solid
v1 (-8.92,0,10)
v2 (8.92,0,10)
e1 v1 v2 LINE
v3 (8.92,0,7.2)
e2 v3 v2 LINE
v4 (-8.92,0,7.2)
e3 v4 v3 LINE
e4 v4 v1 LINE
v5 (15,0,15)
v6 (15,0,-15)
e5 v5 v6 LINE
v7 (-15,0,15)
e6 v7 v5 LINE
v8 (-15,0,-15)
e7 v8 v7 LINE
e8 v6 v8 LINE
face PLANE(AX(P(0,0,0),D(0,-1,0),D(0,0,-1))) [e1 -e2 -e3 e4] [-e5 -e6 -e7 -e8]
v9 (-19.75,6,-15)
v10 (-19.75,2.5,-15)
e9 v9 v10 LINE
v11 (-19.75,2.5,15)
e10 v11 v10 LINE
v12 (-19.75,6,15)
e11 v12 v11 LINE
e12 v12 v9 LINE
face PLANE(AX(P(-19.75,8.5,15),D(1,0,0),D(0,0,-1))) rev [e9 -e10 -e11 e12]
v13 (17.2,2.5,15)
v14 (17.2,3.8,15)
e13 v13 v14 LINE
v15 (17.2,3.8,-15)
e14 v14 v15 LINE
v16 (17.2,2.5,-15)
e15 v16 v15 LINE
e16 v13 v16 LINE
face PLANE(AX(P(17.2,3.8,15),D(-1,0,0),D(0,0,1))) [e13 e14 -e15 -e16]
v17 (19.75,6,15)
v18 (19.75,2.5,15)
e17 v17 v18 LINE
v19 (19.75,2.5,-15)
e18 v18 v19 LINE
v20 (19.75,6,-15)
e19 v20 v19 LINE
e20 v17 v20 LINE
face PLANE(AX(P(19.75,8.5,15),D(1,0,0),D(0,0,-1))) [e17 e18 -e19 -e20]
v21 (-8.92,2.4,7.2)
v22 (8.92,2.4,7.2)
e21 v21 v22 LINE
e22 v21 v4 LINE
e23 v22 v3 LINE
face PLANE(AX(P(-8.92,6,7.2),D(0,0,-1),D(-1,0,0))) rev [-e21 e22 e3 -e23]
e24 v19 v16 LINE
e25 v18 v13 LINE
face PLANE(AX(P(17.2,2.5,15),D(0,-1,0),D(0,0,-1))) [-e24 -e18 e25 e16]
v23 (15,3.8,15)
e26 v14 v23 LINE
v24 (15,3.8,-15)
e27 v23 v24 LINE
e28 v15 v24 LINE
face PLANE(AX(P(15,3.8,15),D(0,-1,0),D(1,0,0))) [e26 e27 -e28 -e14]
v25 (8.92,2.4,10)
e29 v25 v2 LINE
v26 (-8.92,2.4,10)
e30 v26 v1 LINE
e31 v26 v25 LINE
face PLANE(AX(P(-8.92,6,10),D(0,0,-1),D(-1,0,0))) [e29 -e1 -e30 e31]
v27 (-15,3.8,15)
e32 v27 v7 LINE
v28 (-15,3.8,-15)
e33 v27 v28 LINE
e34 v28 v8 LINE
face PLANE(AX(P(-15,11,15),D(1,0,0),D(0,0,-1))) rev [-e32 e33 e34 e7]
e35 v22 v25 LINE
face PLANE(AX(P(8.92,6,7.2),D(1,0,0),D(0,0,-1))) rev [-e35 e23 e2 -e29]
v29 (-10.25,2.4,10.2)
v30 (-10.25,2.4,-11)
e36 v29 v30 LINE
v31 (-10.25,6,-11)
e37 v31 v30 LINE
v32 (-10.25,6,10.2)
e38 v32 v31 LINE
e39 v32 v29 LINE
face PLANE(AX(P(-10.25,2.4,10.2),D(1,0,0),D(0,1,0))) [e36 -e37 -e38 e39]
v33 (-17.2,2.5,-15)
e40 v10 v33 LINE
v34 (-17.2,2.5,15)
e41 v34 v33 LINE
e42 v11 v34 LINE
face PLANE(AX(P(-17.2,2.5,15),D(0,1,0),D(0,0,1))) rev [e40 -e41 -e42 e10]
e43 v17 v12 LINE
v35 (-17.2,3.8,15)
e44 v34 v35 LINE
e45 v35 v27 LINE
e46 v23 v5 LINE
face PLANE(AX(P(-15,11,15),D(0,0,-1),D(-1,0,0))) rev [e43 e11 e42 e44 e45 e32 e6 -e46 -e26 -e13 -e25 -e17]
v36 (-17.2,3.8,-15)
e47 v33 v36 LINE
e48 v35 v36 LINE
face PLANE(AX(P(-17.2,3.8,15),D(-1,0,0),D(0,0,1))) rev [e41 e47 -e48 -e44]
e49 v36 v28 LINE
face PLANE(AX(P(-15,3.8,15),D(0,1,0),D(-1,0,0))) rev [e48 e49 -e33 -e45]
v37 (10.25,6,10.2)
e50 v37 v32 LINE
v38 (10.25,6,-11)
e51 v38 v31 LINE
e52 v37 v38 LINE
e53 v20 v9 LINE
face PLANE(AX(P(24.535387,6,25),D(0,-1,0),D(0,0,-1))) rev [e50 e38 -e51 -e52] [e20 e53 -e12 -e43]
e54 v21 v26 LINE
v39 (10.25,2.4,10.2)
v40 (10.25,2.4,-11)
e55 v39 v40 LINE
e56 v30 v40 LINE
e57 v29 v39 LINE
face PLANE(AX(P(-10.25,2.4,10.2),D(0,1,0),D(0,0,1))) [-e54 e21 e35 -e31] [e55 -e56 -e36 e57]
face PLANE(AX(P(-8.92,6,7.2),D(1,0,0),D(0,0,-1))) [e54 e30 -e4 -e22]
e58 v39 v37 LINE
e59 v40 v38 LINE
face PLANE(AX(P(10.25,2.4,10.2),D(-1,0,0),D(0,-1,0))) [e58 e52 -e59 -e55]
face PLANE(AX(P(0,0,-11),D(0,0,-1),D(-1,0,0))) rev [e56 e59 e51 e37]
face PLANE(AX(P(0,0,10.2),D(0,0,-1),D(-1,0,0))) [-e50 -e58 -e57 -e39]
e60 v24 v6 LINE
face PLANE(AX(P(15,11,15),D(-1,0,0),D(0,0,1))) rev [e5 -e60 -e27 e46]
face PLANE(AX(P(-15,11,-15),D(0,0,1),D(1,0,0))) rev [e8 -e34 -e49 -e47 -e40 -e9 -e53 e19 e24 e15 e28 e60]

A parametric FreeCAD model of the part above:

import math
import FreeCAD as App
import Part
import Sketcher
from FreeCAD import Vector
Q = App.Units.Quantity


def add_polygon(sketch, points):
    """Adds a closed chain of lines whose ends are joined by coincident constraints."""
    first, n = sketch.GeometryCount, len(points)
    for a, b in zip(points, points[1:] + points[:1]):
        sketch.addGeometry(Part.LineSegment(App.Vector(*a, 0), App.Vector(*b, 0)), False)
    for i in range(n):
        sketch.addConstraint(Sketcher.Constraint("Coincident", first + i, 2, first + (i + 1) % n, 1))

doc = App.newDocument("Part")
body = doc.addObject("PartDesign::Body", "Body")

sketch1 = doc.addObject("Sketcher::SketchObject", "Sketch")
body.addObject(sketch1)
sketch1.AttachmentSupport = (doc.XZ_Plane, [""])
sketch1.MapMode = "FlatFace"
add_polygon(sketch1, [(-15, -15), (-15, 15), (15, 15), (15, -15)])
sketch1.addConstraint([
    Sketcher.Constraint("Vertical", 0),
    Sketcher.Constraint("Horizontal", 1),
    Sketcher.Constraint("Vertical", 2),
    Sketcher.Constraint("Horizontal", 3),
    Sketcher.Constraint("Symmetric", 0, 2, 2, 2, -1, 1),
    Sketcher.Constraint("Equal", 3, 0),
    Sketcher.Constraint("DistanceX", 1, 1, 1, 2, Q("30 mm")),
])
pad1 = doc.addObject("PartDesign::Pad", "Pad")
body.addObject(pad1)
pad1.Profile = sketch1
pad1.Length = 11
pad1.Reversed = True

sketch2 = doc.addObject("Sketcher::SketchObject", "Sketch001")
body.addObject(sketch2)
sketch2.AttachmentSupport = (doc.XZ_Plane, [""])
sketch2.MapMode = "FlatFace"
add_polygon(sketch2, [(-8.9, 10), (-8.9, 7.2), (8.9, 7.2), (8.9, 10)])
sketch2.addConstraint([
    Sketcher.Constraint("Vertical", 0),
    Sketcher.Constraint("Horizontal", 1),
    Sketcher.Constraint("Vertical", 2),
    Sketcher.Constraint("Horizontal", 3),
    Sketcher.Constraint("DistanceY", 0, 2, 0, 1, Q("2.8 mm")),
    Sketcher.Constraint("DistanceY", -1, 1, 2, 2, Q("10 mm")),
    Sketcher.Constraint("DistanceX", 1, 1, 1, 2, Q("17.84 mm")),
    Sketcher.Constraint("DistanceX", 0, 2, -1, 1, Q("8.92 mm")),
])
pocket1 = doc.addObject("PartDesign::Pocket", "Pocket")
body.addObject(pocket1)
pocket1.Profile = sketch2
pocket1.Length = 6

sketch3 = doc.addObject("Sketcher::SketchObject", "Sketch002")
body.addObject(sketch3)
sketch3.AttachmentSupport = (doc.XY_Plane, [""])
sketch3.MapMode = "FlatFace"
sketch3.AttachmentOffset = App.Placement(Vector(0, 0, 7.2), App.Rotation())
add_polygon(sketch3, [(-10.2, 6), (-10.2, 2.4), (10.2, 2.4), (10.2, 6)])
sketch3.addConstraint([
    Sketcher.Constraint("Vertical", 0),
    Sketcher.Constraint("Horizontal", 1),
    Sketcher.Constraint("Vertical", 2),
    Sketcher.Constraint("Horizontal", 3),
    Sketcher.Constraint("DistanceX", 1, 1, 1, 2, Q("20.5 mm")),
    Sketcher.Constraint("DistanceY", 0, 2, 0, 1, Q("3.6 mm")),
    Sketcher.Constraint("DistanceY", -1, 1, 2, 2, Q("6 mm")),
    Sketcher.Constraint("DistanceX", 0, 2, -1, 1, Q("10.25 mm")),
])
pocket2 = doc.addObject("PartDesign::Pocket", "Pocket001")
body.addObject(pocket2)
pocket2.Profile = sketch3
pocket2.Type = "TwoLengths"
pocket2.Length = 3
pocket2.Length2 = 17.2
pocket2.Reversed = True

sketch4 = doc.addObject("Sketcher::SketchObject", "Sketch003")
body.addObject(sketch4)
sketch4.AttachmentSupport = (doc.XZ_Plane, [""])
sketch4.MapMode = "FlatFace"
sketch4.AttachmentOffset = App.Placement(Vector(0, 0, -6), App.Rotation())
add_polygon(sketch4, [(-5, 5), (-5, -5), (5, -5), (5, 5)])
sketch4.addConstraint([
    Sketcher.Constraint("Vertical", 0),
    Sketcher.Constraint("Horizontal", 1),
    Sketcher.Constraint("Vertical", 2),
    Sketcher.Constraint("Horizontal", 3),
    Sketcher.Constraint("Equal", 3, 0),
    Sketcher.Constraint("DistanceX", 1, 1, 1, 2, Q("10 mm")),
    Sketcher.Constraint("DistanceX", 0, 2, -1, 1, Q("5 mm")),
    Sketcher.Constraint("DistanceY", 0, 2, -1, 1, Q("4.95 mm")),
])
pocket3 = doc.addObject("PartDesign::Pocket", "Pocket002")
body.addObject(pocket3)
pocket3.Profile = sketch4
pocket3.Length = 2

sketch5 = doc.addObject("Sketcher::SketchObject", "Sketch004")
body.addObject(sketch5)
sketch5.AttachmentSupport = (doc.XZ_Plane, [""])
sketch5.MapMode = "FlatFace"
sketch5.AttachmentOffset = App.Placement(Vector(0, 0, -8), App.Rotation())
sketch5.addGeometry(Part.Circle(Vector(0, 0, 0), Vector(0, 0, 1), 1.5), False)
sketch5.addConstraint([
    Sketcher.Constraint("Coincident", 0, 3, -1, 1),
    Sketcher.Constraint("Diameter", 0, Q("3 mm")),
])
pocket4 = doc.addObject("PartDesign::Pocket", "Pocket003")
body.addObject(pocket4)
pocket4.Profile = sketch5
pocket4.Length = 20

sketch6 = doc.addObject("Sketcher::SketchObject", "Sketch005")
body.addObject(sketch6)
sketch6.AttachmentSupport = (doc.XY_Plane, [""])
sketch6.MapMode = "FlatFace"
sketch6.AttachmentOffset = App.Placement(Vector(0, 0, -10), App.Rotation())
add_polygon(sketch6, [(-10.2, 6), (-10.2, 2.4), (10.2, 2.4), (10.2, 6)])
sketch6.addConstraint([
    Sketcher.Constraint("Vertical", 0),
    Sketcher.Constraint("Horizontal", 1),
    Sketcher.Constraint("Vertical", 2),
    Sketcher.Constraint("Horizontal", 3),
    Sketcher.Constraint("DistanceX", 1, 1, 1, 2, Q("20.5 mm")),
    Sketcher.Constraint("DistanceY", 0, 2, 0, 1, Q("3.6 mm")),
    Sketcher.Constraint("DistanceY", -1, 1, 2, 2, Q("6 mm")),
    Sketcher.Constraint("DistanceX", 0, 2, -1, 1, Q("10.25 mm")),
])
pocket5 = doc.addObject("PartDesign::Pocket", "Pocket004")
body.addObject(pocket5)
pocket5.Profile = sketch6
pocket5.Length = 1

sketch7 = doc.addObject("Sketcher::SketchObject", "Sketch006")
body.addObject(sketch7)
sketch7.AttachmentSupport = (doc.XY_Plane, [""])
sketch7.MapMode = "FlatFace"
sketch7.AttachmentOffset = App.Placement(Vector(0, 0, -15), App.Rotation())
add_polygon(sketch7, [(15, 3.8), (15, 7.2), (17.2, 7.2), (17.2, 8.5), (19.8, 8.5), (19.8, 2.5), (17.2, 2.5), (17.2, 3.8)])
sketch7.addConstraint([
    Sketcher.Constraint("Vertical", 0),
    Sketcher.Constraint("Horizontal", 1),
    Sketcher.Constraint("Vertical", 2),
    Sketcher.Constraint("Horizontal", 3),
    Sketcher.Constraint("Vertical", 4),
    Sketcher.Constraint("Horizontal", 5),
    Sketcher.Constraint("Vertical", 6),
    Sketcher.Constraint("Horizontal", 7),
    Sketcher.Constraint("Vertical", 2, 2, 5, 2),
    Sketcher.Constraint("Equal", 2, 6),
    Sketcher.Constraint("DistanceY", 4, 2, 4, 1, Q("6 mm")),
    Sketcher.Constraint("DistanceX", 1, 1, 1, 2, Q("2.2 mm")),
    Sketcher.Constraint("DistanceY", 0, 1, 0, 2, Q("3.4 mm")),
    Sketcher.Constraint("DistanceX", -1, 1, 0, 2, Q("15 mm")),
    Sketcher.Constraint("DistanceX", 3, 1, 3, 2, Q("2.55 mm")),
    Sketcher.Constraint("DistanceY", -1, 1, 0, 2, Q("7.2 mm")),
])
pad2 = doc.addObject("PartDesign::Pad", "Pad001")
body.addObject(pad2)
pad2.Profile = sketch7
pad2.Length = 30
doc.recompute()

mirrored = doc.addObject("PartDesign::Mirrored", "Mirrored")
body.addObject(mirrored)
mirrored.Originals = [pad2]
mirrored.MirrorPlane = (doc.YZ_Plane, [""])
body.Tip = mirrored

sketch8 = doc.addObject("Sketcher::SketchObject", "Sketch007")
body.addObject(sketch8)
sketch8.AttachmentSupport = (doc.XY_Plane, [""])
sketch8.MapMode = "FlatFace"
sketch8.addGeometry([
    Part.LineSegment(Vector(0, 8, 0), Vector(0, 68, 0)),
    Part.ArcOfCircle(Part.Circle(Vector(0, 38, 0), Vector(0, 0, 1), 30), math.radians(90), math.radians(268)),
    Part.LineSegment(Vector(-1.3, 8, 0), Vector(0, 8, 0)),
], False)
sketch8.addConstraint([
    Sketcher.Constraint("Coincident", 0, 2, 1, 1),
    Sketcher.Constraint("Coincident", 1, 2, 2, 1),
    Sketcher.Constraint("Coincident", 2, 2, 0, 1),
    Sketcher.Constraint("Vertical", 0),
    Sketcher.Constraint("Horizontal", 2),
    Sketcher.Constraint("PointOnObject", 1, 3, -2),
    Sketcher.Constraint("PointOnObject", 0, 2, -2),
    Sketcher.Constraint("Radius", 1, Q("30 mm")),
    Sketcher.Constraint("DistanceX", 2, 1, 2, 2, Q("1.3 mm")),
    Sketcher.Constraint("DistanceY", -1, 1, 1, 2, Q("8 mm")),
])
groove = doc.addObject("PartDesign::Groove", "Groove")
body.addObject(groove)
groove.Profile = sketch8
groove.ReferenceAxis = (sketch8, ["V_Axis"])
groove.Angle = 360

sketch9 = doc.addObject("Sketcher::SketchObject", "Sketch008")
body.addObject(sketch9)
sketch9.AttachmentSupport = (doc.XZ_Plane, [""])
sketch9.MapMode = "FlatFace"
sketch9.AttachmentOffset = App.Placement(Vector(0, 0, -7.4), App.Rotation())
add_polygon(sketch9, [(-5, 5), (-5, -5), (5, -5), (5, 5)])
sketch9.addGeometry(Part.Circle(Vector(0, 0, 0), Vector(0, 0, 1), 1.5), False)
sketch9.addConstraint([
    Sketcher.Constraint("Vertical", 0),
    Sketcher.Constraint("Horizontal", 1),
    Sketcher.Constraint("Vertical", 2),
    Sketcher.Constraint("Horizontal", 3),
    Sketcher.Constraint("Coincident", 4, 3, -1, 1),
    Sketcher.Constraint("Equal", 3, 0),
    Sketcher.Constraint("Diameter", 4, Q("3 mm")),
    Sketcher.Constraint("DistanceX", 1, 1, 1, 2, Q("10 mm")),
    Sketcher.Constraint("DistanceX", 0, 2, -1, 1, Q("5 mm")),
    Sketcher.Constraint("DistanceY", 0, 2, -1, 1, Q("4.95 mm")),
])
pad3 = doc.addObject("PartDesign::Pad", "Pad002")
body.addObject(pad3)
pad3.Profile = sketch9
pad3.Length = 0.6
pad3.Reversed = True

sketch10 = doc.addObject("Sketcher::SketchObject", "Sketch009")
body.addObject(sketch10)
sketch10.AttachmentSupport = (doc.XY_Plane, [""])
sketch10.MapMode = "FlatFace"
sketch10.AttachmentOffset = App.Placement(Vector(0, 0, -15), App.Rotation())
add_polygon(sketch10, [(25, 14), (25, 6), (-20, 6), (-20, 14)])
sketch10.addConstraint([
    Sketcher.Constraint("Vertical", 0),
    Sketcher.Constraint("Horizontal", 1),
    Sketcher.Constraint("Vertical", 2),
    Sketcher.Constraint("Horizontal", 3),
    Sketcher.Constraint("DistanceY", -1, 1, 0, 2, Q("6 mm")),
    Sketcher.Constraint("DistanceX", 1, 2, 1, 1, Q("44.814636 mm")),
    Sketcher.Constraint("DistanceY", 0, 2, 0, 1, Q("7.577756 mm")),
    Sketcher.Constraint("DistanceX", 1, 2, -1, 1, Q("20.279249 mm")),
])
pocket6 = doc.addObject("PartDesign::Pocket", "Pocket005")
body.addObject(pocket6)
pocket6.Profile = sketch10
pocket6.Length = 40
pocket6.Reversed = True

doc.recompute()
